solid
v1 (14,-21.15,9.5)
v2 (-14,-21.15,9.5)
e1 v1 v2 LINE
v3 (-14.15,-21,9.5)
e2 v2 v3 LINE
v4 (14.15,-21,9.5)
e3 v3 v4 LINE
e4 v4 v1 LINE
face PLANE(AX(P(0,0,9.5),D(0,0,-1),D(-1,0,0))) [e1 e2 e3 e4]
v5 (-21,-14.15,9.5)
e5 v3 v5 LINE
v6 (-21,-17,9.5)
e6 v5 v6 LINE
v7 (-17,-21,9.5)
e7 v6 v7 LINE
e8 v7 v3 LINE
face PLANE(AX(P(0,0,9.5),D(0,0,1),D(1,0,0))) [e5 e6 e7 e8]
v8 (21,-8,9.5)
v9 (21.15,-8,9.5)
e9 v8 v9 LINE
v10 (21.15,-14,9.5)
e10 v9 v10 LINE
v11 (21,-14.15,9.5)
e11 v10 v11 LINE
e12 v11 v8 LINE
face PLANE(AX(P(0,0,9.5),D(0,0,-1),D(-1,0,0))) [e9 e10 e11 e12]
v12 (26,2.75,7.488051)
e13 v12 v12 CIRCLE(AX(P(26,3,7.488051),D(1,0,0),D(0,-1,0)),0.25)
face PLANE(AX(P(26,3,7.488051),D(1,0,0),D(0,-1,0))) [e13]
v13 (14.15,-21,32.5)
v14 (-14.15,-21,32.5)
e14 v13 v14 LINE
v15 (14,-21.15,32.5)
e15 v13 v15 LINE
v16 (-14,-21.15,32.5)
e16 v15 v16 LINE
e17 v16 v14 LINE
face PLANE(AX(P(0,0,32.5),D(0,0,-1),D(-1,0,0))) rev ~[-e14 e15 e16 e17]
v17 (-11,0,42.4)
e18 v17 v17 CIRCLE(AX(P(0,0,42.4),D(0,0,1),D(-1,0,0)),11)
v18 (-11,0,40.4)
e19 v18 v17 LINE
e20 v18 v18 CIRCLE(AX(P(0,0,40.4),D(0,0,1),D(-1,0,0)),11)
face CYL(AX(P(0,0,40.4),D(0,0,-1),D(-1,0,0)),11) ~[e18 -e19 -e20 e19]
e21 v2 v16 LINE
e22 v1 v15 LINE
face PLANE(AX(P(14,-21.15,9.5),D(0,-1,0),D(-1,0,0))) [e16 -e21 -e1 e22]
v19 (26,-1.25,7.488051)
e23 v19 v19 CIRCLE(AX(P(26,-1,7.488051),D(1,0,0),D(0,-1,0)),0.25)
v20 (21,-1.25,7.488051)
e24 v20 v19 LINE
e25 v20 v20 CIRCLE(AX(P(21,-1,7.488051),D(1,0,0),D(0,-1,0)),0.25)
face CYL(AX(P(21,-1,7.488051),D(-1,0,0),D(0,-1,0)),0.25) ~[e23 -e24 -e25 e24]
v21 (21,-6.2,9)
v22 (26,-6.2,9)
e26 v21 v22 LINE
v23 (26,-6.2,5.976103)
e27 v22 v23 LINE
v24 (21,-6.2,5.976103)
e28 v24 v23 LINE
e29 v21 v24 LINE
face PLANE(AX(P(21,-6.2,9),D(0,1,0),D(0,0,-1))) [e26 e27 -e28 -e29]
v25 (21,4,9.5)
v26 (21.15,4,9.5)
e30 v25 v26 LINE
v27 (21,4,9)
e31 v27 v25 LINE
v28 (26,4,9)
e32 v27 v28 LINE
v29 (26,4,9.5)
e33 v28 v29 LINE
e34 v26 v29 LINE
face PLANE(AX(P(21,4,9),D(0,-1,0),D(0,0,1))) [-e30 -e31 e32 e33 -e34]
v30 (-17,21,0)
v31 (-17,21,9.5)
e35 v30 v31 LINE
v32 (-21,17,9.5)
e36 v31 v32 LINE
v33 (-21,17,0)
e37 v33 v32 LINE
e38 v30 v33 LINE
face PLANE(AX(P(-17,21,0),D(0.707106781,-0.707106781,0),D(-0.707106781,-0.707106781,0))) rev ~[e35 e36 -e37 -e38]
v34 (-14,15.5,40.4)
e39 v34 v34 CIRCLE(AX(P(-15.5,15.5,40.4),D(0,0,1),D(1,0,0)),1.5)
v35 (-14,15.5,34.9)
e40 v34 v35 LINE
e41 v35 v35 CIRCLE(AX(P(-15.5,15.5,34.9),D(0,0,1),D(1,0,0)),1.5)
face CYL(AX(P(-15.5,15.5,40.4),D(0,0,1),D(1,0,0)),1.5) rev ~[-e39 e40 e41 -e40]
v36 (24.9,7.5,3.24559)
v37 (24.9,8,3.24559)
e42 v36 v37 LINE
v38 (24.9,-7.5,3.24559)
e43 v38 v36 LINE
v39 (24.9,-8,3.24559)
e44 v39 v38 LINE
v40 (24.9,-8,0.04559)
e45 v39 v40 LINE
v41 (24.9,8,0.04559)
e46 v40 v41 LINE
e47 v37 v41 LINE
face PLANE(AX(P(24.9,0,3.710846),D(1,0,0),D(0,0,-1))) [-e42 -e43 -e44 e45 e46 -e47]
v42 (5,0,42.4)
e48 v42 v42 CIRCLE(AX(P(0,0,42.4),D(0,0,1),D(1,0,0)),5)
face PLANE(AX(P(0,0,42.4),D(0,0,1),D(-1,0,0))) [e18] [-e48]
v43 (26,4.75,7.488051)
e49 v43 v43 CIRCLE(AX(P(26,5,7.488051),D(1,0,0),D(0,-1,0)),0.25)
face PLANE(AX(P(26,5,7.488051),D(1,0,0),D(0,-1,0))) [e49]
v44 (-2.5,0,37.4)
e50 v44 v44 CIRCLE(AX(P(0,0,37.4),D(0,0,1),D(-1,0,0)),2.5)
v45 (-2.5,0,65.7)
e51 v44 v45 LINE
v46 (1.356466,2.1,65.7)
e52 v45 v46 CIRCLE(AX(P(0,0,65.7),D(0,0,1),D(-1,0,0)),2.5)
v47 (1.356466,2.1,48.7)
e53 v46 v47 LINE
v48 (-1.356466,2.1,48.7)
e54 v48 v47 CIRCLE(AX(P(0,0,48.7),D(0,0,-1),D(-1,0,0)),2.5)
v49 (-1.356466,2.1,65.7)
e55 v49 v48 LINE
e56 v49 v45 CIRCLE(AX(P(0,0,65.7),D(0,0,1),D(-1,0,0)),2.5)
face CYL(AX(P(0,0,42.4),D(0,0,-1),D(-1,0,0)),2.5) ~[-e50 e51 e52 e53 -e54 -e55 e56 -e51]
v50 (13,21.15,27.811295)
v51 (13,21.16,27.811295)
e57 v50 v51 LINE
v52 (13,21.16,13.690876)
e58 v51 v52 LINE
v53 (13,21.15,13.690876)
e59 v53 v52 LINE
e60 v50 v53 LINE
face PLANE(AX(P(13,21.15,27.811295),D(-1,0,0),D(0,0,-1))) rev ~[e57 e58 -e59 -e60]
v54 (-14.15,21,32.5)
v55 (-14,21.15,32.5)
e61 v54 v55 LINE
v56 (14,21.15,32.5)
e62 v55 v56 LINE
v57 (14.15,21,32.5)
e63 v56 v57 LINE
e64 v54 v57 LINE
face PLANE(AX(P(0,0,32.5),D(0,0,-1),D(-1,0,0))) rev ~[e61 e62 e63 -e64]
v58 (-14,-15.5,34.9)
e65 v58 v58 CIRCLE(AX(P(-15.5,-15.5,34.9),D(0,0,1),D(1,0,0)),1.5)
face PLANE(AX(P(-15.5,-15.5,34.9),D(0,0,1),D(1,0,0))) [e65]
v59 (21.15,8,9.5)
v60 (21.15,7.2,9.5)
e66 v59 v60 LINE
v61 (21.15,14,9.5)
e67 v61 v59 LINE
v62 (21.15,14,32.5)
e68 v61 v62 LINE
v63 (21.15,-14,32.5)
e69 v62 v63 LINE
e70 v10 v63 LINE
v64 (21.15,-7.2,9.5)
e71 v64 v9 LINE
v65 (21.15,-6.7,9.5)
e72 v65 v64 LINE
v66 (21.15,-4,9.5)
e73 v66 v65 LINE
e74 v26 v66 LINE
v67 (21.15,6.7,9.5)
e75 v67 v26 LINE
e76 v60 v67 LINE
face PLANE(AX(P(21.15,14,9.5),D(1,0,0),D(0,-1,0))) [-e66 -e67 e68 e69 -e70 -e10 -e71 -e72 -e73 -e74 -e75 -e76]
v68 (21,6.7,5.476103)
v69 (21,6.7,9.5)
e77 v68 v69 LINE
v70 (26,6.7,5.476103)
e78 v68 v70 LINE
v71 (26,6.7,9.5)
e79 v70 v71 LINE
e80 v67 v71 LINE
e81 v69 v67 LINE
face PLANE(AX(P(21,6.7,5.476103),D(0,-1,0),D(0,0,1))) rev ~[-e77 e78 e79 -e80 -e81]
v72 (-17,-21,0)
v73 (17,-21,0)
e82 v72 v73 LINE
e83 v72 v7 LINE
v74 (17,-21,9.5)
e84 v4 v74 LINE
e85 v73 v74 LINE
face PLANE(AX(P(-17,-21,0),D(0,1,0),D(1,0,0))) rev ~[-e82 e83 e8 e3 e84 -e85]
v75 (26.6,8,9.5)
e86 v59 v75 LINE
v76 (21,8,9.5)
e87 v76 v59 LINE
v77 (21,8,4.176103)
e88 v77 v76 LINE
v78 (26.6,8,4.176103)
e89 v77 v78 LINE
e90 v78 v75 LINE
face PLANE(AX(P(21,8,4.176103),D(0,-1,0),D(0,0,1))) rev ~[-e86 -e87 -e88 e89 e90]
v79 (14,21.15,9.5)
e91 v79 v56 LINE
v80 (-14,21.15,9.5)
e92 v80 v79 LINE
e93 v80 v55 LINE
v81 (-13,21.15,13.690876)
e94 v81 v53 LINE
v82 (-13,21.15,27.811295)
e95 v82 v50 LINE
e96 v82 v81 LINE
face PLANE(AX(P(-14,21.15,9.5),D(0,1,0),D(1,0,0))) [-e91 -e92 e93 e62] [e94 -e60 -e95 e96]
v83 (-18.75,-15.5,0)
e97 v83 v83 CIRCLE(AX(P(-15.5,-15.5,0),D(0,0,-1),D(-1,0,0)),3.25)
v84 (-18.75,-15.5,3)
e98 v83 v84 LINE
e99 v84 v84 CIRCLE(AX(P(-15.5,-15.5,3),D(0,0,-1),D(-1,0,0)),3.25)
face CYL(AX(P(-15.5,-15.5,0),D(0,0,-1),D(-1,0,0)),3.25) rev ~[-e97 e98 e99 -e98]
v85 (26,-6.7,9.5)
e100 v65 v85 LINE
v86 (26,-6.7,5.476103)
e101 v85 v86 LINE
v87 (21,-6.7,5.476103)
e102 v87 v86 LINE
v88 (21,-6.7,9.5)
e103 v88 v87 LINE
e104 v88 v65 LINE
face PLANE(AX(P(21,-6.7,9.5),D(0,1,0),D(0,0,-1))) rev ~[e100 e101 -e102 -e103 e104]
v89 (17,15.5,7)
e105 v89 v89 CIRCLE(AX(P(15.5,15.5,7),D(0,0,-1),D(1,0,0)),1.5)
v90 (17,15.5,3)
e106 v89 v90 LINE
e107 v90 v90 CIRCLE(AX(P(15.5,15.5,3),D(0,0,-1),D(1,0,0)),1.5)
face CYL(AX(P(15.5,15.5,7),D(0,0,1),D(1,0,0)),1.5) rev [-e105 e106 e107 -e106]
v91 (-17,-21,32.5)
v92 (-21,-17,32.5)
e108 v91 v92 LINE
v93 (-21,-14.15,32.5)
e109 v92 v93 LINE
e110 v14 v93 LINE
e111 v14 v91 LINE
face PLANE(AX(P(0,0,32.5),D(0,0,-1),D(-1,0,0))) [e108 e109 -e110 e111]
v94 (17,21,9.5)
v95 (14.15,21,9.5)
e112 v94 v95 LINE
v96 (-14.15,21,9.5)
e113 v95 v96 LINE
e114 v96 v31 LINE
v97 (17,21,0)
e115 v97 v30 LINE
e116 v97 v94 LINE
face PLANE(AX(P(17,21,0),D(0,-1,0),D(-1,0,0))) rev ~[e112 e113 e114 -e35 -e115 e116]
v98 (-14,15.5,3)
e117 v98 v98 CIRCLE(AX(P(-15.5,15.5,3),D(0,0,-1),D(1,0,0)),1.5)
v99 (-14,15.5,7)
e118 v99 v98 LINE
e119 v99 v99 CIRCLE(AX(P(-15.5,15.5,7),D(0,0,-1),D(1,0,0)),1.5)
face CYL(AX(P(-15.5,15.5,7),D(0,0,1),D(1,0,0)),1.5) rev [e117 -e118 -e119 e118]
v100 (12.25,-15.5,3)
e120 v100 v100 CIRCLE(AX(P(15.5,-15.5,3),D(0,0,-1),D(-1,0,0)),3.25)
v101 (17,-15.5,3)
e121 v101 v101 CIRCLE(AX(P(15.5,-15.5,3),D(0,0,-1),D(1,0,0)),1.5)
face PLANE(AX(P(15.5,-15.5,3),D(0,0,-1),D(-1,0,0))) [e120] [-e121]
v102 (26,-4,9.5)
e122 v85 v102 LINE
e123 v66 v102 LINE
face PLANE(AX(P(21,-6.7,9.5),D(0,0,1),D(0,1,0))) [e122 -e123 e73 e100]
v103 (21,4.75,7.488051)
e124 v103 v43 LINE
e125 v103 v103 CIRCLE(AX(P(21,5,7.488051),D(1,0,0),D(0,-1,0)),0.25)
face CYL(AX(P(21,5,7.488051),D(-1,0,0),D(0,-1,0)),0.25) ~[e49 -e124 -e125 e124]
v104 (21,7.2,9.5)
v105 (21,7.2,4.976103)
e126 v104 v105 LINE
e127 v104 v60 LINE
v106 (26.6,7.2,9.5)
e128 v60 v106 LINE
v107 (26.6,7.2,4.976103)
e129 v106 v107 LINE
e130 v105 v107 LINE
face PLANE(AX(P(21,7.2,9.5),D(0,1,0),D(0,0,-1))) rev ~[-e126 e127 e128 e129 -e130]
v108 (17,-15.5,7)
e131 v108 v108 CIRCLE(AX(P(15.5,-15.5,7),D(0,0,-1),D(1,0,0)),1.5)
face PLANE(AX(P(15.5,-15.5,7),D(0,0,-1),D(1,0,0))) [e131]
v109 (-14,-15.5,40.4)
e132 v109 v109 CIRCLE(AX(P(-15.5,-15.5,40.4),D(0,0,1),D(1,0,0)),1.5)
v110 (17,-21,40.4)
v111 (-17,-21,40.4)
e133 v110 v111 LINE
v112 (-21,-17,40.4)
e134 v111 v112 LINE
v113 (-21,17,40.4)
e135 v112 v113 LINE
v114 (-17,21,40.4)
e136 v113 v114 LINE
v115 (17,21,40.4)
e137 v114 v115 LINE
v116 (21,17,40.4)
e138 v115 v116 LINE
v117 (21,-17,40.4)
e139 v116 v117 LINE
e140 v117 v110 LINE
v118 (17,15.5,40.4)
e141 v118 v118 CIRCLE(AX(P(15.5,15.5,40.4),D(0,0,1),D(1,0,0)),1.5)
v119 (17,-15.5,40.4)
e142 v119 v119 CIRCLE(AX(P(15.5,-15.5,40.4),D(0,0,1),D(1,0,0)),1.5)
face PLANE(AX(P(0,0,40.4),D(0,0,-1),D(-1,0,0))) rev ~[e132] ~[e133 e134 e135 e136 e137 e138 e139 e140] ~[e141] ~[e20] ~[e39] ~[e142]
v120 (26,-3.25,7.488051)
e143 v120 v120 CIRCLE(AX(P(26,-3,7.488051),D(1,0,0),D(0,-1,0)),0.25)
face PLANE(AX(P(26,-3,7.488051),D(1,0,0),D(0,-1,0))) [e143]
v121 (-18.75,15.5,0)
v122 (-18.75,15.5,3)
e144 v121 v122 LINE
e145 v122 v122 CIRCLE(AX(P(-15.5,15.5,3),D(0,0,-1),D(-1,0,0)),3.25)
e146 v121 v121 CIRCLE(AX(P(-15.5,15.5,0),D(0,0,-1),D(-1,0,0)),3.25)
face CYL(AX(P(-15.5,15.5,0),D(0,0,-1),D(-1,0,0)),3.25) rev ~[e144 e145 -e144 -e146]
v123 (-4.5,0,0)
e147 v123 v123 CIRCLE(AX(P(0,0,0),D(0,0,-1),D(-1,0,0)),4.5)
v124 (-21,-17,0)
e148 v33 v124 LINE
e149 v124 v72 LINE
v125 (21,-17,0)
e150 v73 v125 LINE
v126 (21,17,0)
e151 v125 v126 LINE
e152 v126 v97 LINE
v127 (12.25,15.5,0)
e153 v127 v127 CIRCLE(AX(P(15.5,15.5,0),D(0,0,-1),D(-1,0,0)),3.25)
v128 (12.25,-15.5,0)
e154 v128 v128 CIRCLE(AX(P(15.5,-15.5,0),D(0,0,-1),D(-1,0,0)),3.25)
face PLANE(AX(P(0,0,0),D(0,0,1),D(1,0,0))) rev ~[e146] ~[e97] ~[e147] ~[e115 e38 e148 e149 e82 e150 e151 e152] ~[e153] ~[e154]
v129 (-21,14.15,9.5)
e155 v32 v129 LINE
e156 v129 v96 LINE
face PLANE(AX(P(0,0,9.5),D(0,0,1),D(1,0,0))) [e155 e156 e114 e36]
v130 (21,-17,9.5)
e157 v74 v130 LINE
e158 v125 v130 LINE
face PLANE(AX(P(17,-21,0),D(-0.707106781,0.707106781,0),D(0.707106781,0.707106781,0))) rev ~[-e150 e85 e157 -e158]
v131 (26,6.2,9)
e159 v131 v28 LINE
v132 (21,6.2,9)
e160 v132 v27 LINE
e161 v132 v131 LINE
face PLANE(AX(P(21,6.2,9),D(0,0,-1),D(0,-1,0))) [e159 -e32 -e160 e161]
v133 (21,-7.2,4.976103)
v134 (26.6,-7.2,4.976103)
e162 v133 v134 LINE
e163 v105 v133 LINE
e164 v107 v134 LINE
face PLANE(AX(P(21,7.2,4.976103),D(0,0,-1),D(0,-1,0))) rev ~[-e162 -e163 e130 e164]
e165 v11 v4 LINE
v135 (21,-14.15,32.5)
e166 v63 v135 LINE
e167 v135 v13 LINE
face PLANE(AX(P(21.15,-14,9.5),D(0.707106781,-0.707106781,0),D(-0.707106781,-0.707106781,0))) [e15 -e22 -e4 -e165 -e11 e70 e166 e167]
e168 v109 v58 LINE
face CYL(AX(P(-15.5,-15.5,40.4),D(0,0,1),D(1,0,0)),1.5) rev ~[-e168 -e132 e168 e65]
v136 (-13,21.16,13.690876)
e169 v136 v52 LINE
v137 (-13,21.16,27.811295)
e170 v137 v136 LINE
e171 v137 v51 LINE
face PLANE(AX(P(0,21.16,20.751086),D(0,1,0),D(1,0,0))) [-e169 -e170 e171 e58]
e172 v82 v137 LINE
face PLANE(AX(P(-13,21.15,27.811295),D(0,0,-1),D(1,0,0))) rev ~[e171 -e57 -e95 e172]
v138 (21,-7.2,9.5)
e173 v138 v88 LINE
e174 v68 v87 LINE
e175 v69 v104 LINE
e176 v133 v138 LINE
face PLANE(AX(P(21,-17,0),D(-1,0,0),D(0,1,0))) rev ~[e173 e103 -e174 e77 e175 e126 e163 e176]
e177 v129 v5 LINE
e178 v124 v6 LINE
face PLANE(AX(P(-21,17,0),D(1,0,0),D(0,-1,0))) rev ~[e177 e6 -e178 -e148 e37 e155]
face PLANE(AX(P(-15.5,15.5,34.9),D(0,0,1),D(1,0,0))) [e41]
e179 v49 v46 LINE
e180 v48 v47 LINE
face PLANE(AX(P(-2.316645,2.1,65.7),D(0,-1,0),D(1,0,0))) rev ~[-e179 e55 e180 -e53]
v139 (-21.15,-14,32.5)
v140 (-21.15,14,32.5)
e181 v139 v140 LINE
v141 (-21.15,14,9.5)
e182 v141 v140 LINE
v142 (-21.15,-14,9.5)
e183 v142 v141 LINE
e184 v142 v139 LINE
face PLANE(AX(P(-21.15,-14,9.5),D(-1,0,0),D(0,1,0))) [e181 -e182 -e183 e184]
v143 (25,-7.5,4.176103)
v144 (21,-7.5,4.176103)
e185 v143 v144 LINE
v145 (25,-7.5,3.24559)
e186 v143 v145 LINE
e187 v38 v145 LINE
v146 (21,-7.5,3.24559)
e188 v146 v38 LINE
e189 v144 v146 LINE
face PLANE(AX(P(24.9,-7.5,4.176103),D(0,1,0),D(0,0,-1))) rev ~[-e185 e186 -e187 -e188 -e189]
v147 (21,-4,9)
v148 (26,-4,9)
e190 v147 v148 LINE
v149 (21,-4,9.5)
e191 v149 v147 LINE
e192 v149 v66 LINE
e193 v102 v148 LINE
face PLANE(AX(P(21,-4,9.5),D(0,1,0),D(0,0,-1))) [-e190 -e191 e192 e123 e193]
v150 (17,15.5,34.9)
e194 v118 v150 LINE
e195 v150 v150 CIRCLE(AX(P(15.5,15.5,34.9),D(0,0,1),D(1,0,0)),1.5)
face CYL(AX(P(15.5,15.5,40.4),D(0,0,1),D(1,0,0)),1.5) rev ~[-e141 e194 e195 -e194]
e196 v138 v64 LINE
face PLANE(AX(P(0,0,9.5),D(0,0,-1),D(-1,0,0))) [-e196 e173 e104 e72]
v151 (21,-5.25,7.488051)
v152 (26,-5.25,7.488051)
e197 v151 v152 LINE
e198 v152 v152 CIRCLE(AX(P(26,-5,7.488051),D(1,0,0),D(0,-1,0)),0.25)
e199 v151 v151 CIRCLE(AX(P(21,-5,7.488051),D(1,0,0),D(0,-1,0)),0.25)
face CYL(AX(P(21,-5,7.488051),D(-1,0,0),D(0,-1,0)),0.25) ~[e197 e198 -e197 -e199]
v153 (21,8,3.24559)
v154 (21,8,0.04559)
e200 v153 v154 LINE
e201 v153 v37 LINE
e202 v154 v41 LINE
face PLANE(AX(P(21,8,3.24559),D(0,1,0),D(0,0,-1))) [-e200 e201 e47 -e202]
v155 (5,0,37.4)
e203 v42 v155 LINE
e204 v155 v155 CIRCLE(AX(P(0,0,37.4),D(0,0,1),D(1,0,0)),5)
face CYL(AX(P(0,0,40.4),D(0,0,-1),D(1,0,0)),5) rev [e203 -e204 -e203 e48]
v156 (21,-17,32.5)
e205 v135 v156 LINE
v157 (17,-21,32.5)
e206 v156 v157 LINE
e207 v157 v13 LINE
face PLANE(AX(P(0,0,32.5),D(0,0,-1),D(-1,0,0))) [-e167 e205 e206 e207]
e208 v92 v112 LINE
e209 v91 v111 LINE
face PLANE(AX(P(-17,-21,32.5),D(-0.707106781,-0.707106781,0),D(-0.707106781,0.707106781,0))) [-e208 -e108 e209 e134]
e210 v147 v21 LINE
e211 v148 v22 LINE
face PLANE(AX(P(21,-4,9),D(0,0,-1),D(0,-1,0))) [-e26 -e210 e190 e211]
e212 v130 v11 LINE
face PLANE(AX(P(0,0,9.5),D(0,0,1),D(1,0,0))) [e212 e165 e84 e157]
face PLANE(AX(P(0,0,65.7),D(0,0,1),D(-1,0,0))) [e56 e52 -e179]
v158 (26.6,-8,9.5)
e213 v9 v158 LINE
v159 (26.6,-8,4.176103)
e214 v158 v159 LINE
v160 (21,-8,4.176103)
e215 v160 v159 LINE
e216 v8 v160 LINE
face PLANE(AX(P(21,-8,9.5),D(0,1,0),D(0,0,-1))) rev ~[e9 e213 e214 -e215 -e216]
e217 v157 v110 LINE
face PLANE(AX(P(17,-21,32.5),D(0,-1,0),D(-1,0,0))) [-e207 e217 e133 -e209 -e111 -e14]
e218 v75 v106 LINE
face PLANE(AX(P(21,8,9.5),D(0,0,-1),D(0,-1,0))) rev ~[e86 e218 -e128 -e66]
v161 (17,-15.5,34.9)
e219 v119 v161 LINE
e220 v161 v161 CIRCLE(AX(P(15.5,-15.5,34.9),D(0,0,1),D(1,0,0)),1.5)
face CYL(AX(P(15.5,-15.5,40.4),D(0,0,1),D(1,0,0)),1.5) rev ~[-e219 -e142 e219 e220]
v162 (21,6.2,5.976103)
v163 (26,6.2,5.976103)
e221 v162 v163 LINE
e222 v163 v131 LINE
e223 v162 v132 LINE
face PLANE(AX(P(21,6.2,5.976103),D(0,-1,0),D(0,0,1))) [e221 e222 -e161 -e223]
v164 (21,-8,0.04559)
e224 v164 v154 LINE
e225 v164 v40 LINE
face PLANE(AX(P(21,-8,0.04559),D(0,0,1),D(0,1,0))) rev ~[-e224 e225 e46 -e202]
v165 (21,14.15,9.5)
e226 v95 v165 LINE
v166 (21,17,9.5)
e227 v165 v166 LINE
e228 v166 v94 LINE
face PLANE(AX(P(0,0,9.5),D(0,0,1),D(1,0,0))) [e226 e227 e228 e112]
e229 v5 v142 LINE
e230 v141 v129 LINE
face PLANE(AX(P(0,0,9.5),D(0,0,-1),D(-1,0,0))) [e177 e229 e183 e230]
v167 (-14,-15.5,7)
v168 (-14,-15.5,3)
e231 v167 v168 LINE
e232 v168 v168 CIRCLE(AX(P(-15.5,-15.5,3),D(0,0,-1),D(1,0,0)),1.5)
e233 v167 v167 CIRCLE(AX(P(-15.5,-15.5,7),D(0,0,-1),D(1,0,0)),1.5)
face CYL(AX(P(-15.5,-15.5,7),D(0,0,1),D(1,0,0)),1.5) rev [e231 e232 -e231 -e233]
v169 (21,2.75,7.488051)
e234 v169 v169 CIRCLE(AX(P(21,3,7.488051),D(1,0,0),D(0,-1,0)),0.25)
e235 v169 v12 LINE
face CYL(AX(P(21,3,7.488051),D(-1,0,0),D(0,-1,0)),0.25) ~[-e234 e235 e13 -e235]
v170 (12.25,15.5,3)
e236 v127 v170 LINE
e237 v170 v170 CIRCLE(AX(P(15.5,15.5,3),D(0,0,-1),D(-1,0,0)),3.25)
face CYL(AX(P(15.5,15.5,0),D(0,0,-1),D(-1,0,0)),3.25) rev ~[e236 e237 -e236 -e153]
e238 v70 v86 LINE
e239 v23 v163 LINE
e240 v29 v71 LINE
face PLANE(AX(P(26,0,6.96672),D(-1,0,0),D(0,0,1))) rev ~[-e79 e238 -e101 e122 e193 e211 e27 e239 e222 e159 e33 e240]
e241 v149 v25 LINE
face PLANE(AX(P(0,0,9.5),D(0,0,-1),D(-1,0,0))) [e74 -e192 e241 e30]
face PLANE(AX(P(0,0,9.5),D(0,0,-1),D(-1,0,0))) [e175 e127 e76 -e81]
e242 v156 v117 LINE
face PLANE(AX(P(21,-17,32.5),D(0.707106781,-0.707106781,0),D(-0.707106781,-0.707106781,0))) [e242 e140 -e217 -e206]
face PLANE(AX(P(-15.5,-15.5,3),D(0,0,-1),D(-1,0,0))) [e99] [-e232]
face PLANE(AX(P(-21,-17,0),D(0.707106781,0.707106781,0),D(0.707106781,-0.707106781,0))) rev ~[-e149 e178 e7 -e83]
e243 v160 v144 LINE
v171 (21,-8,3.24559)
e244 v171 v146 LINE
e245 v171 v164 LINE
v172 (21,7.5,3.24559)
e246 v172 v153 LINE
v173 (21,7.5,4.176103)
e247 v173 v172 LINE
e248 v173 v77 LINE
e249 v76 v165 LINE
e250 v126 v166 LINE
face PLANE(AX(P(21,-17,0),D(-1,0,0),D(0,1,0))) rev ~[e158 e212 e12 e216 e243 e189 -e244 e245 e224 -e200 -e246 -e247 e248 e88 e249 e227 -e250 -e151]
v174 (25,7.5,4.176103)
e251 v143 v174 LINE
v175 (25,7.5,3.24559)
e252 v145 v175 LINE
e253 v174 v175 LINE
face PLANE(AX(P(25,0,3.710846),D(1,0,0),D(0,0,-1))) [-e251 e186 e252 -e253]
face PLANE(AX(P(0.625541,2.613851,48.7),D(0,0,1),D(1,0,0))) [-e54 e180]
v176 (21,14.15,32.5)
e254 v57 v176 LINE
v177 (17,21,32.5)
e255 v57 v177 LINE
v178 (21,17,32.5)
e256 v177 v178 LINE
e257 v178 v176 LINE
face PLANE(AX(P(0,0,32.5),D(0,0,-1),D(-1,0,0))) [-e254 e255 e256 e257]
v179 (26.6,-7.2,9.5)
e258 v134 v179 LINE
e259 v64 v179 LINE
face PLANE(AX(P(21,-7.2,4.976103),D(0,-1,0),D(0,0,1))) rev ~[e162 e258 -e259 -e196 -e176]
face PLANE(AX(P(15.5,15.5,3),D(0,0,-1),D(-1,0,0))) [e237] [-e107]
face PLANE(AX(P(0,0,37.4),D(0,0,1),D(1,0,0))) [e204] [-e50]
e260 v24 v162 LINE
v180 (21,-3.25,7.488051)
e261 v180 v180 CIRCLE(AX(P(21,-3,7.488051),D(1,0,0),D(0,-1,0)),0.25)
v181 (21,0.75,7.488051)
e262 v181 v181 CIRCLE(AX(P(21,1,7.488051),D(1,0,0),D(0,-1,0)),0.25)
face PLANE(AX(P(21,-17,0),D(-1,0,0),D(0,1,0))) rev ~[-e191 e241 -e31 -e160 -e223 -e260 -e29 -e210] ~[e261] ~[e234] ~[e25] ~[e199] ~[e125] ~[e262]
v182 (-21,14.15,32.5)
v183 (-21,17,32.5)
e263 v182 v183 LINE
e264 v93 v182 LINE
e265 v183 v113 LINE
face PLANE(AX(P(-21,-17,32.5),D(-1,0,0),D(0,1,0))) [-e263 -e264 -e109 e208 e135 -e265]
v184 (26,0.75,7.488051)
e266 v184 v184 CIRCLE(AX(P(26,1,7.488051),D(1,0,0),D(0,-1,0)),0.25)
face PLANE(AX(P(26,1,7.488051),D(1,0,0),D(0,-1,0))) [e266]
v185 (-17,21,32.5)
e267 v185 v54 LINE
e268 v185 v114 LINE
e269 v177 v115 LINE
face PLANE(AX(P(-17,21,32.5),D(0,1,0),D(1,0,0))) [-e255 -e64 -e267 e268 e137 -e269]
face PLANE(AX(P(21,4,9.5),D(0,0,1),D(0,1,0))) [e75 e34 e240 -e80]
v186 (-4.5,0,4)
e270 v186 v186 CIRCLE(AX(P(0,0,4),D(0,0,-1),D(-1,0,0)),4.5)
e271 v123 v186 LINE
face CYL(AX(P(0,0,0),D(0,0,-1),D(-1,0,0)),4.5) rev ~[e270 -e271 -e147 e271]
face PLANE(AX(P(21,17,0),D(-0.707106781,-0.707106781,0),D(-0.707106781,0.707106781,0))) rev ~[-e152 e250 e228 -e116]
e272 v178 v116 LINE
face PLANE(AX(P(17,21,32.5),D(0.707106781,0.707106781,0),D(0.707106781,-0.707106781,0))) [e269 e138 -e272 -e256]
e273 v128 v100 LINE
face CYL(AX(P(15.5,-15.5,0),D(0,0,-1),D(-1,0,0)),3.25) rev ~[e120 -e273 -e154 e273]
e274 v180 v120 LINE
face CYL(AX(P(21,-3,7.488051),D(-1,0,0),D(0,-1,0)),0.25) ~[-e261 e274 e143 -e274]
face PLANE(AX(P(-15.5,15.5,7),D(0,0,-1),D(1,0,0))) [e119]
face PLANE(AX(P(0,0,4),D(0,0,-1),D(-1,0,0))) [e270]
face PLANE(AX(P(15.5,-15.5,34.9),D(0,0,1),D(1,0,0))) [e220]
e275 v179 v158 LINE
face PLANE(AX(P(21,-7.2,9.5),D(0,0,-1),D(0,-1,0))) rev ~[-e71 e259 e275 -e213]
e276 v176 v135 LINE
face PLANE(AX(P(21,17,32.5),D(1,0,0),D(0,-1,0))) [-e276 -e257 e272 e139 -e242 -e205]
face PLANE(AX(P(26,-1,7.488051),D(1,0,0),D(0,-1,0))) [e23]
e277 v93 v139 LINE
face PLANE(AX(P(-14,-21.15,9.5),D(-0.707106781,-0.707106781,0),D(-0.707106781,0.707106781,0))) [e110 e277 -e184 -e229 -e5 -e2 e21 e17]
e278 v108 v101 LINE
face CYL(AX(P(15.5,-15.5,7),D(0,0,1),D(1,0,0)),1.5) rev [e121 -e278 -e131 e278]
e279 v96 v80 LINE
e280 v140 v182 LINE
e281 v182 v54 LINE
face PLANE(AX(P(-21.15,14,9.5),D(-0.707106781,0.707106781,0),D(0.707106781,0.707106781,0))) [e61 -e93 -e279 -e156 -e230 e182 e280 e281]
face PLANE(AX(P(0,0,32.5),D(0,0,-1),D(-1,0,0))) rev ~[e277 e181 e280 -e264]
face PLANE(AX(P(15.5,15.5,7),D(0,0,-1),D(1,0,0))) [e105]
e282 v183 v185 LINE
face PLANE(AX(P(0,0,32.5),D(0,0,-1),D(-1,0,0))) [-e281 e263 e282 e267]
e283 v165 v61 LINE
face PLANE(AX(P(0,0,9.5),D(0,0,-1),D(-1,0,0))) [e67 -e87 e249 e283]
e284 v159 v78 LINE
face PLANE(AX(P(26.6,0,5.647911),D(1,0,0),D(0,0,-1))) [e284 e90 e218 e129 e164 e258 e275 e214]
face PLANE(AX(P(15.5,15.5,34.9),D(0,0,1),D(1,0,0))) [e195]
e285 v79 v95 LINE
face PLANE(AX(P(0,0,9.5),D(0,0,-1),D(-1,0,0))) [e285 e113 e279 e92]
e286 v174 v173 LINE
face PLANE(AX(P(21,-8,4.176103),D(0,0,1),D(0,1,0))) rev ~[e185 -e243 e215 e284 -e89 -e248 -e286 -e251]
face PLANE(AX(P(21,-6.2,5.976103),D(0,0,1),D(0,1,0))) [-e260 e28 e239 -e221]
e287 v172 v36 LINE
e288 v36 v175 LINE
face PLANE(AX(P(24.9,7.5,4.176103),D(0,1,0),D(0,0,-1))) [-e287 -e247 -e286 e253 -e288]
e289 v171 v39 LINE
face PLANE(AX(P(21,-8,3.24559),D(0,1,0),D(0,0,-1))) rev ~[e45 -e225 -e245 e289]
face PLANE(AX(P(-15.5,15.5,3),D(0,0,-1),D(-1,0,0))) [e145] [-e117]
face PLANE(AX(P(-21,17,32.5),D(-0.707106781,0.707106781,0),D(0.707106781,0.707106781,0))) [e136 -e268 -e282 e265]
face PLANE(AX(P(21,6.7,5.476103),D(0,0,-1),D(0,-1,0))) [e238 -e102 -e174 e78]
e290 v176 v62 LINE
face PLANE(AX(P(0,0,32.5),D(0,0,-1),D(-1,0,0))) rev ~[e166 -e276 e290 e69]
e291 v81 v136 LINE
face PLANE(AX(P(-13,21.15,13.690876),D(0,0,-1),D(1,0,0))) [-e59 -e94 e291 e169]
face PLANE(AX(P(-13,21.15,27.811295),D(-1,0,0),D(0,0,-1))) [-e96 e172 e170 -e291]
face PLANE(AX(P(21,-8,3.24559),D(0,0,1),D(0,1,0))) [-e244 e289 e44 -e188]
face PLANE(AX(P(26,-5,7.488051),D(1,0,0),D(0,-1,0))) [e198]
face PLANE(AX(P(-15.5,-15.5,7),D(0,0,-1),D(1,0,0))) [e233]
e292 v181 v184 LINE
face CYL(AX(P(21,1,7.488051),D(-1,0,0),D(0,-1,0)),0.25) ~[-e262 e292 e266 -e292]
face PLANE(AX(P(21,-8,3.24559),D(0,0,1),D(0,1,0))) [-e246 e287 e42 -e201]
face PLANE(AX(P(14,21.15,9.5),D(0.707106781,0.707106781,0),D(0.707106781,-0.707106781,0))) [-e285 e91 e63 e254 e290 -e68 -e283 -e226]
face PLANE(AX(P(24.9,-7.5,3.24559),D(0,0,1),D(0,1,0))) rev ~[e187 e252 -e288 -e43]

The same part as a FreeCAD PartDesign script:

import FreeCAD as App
import Part
import Sketcher

doc = App.newDocument("Part")
body = doc.addObject("PartDesign::Body", "Body")

# Sketch on XY plane
sketch1 = body.newObject("Sketcher::SketchObject", "Sketch")
sketch1.AttachmentSupport = (doc.getObject("XY_Plane"), [""])
sketch1.MapMode = "FlatFace"
sketch1.addGeometry([
    Part.LineSegment(App.Vector(-17, 21, 0), App.Vector(-21, 17, 0)),  # 0
    Part.LineSegment(App.Vector(-21, 17, 0), App.Vector(-21, -17, 0)),  # 1
    Part.LineSegment(App.Vector(-21, -17, 0), App.Vector(-17, -21, 0)),  # 2
    Part.LineSegment(App.Vector(-17, -21, 0), App.Vector(17, -21, 0)),  # 3
    Part.LineSegment(App.Vector(17, -21, 0), App.Vector(21, -17, 0)),  # 4
    Part.LineSegment(App.Vector(21, -17, 0), App.Vector(21, 17, 0)),  # 5
    Part.LineSegment(App.Vector(21, 17, 0), App.Vector(17, 21, 0)),  # 6
    Part.LineSegment(App.Vector(17, 21, 0), App.Vector(-17, 21, 0)),  # 7
], False)
sketch1.addConstraint([
    Sketcher.Constraint("Coincident", 0, 2, 1, 1),
    Sketcher.Constraint("Coincident", 1, 2, 2, 1),
    Sketcher.Constraint("Coincident", 2, 2, 3, 1),
    Sketcher.Constraint("Coincident", 3, 2, 4, 1),
    Sketcher.Constraint("Coincident", 4, 2, 5, 1),
    Sketcher.Constraint("Coincident", 5, 2, 6, 1),
    Sketcher.Constraint("Coincident", 6, 2, 7, 1),
    Sketcher.Constraint("Coincident", 7, 2, 0, 1),
    Sketcher.Constraint("Vertical", 1),
    Sketcher.Constraint("Horizontal", 3),
    Sketcher.Constraint("Vertical", 5),
    Sketcher.Constraint("Horizontal", 7),
    Sketcher.Constraint("Symmetric", 0, 2, 4, 2, -1, 1),
    Sketcher.Constraint("Symmetric", 2, 2, 6, 2, -1, 1),
    Sketcher.Constraint("Perpendicular", 0, 2),
    Sketcher.Constraint("Perpendicular", 2, 4),
    Sketcher.Constraint("Perpendicular", 4, 6),
    Sketcher.Constraint("Horizontal", 1, 2, 4, 2),
    Sketcher.Constraint("Vertical", 3, 2, 6, 2),
    Sketcher.Constraint("Equal", 7, 1),
    Sketcher.Constraint("DistanceX", 3, 1, 3, 2, 34.0),
    Sketcher.Constraint("DistanceX", 0, 2, -1, 1, 21.0),
])
pad1 = body.newObject("PartDesign::Pad", "Pad")
pad1.Profile = sketch1
pad1.Length = 9.5

# Sketch on XY plane
sketch2 = body.newObject("Sketcher::SketchObject", "Sketch001")
sketch2.AttachmentSupport = (doc.getObject("XY_Plane"), [""])
sketch2.MapMode = "FlatFace"
sketch2.AttachmentOffset = App.Placement(App.Vector(0, 0, 9.5), App.Rotation())
sketch2.addGeometry([
    Part.LineSegment(App.Vector(21, 14, 0), App.Vector(14, 21, 0)),  # 0
    Part.LineSegment(App.Vector(14, 21, 0), App.Vector(-14, 21, 0)),  # 1
    Part.LineSegment(App.Vector(-14, 21, 0), App.Vector(-21, 14, 0)),  # 2
    Part.LineSegment(App.Vector(-21, 14, 0), App.Vector(-21, -14, 0)),  # 3
    Part.LineSegment(App.Vector(-21, -14, 0), App.Vector(-14, -21, 0)),  # 4
    Part.LineSegment(App.Vector(-14, -21, 0), App.Vector(14, -21, 0)),  # 5
    Part.LineSegment(App.Vector(14, -21, 0), App.Vector(21, -14, 0)),  # 6
    Part.LineSegment(App.Vector(21, -14, 0), App.Vector(21, 14, 0)),  # 7
], False)
sketch2.addConstraint([
    Sketcher.Constraint("Coincident", 0, 2, 1, 1),
    Sketcher.Constraint("Coincident", 1, 2, 2, 1),
    Sketcher.Constraint("Coincident", 2, 2, 3, 1),
    Sketcher.Constraint("Coincident", 3, 2, 4, 1),
    Sketcher.Constraint("Coincident", 4, 2, 5, 1),
    Sketcher.Constraint("Coincident", 5, 2, 6, 1),
    Sketcher.Constraint("Coincident", 6, 2, 7, 1),
    Sketcher.Constraint("Coincident", 7, 2, 0, 1),
    Sketcher.Constraint("Horizontal", 1),
    Sketcher.Constraint("Vertical", 3),
    Sketcher.Constraint("Horizontal", 5),
    Sketcher.Constraint("Vertical", 7),
    Sketcher.Constraint("Symmetric", 0, 2, 4, 2, -1, 1),
    Sketcher.Constraint("Symmetric", 2, 2, 6, 2, -1, 1),
    Sketcher.Constraint("Perpendicular", 0, 2),
    Sketcher.Constraint("Perpendicular", 2, 4),
    Sketcher.Constraint("Perpendicular", 4, 6),
    Sketcher.Constraint("Horizontal", 3, 2, 6, 2),
    Sketcher.Constraint("Vertical", 1, 2, 4, 2),
    Sketcher.Constraint("Equal", 5, 3),
    Sketcher.Constraint("DistanceX", 1, 2, 1, 1, 28.0),
    Sketcher.Constraint("DistanceY", 4, 2, 1, 2, 42.3),
])
pad2 = body.newObject("PartDesign::Pad", "Pad001")
pad2.Profile = sketch2
pad2.Length = 23

# Sketch on XY plane
sketch3 = body.newObject("Sketcher::SketchObject", "Sketch002")
sketch3.AttachmentSupport = (doc.getObject("XY_Plane"), [""])
sketch3.MapMode = "FlatFace"
sketch3.AttachmentOffset = App.Placement(App.Vector(0, 0, 32.5), App.Rotation())
sketch3.addGeometry([
    Part.LineSegment(App.Vector(17, 21, 0), App.Vector(-17, 21, 0)),  # 0
    Part.LineSegment(App.Vector(-17, 21, 0), App.Vector(-21, 17, 0)),  # 1
    Part.LineSegment(App.Vector(-21, 17, 0), App.Vector(-21, -17, 0)),  # 2
    Part.LineSegment(App.Vector(-21, -17, 0), App.Vector(-17, -21, 0)),  # 3
    Part.LineSegment(App.Vector(-17, -21, 0), App.Vector(17, -21, 0)),  # 4
    Part.LineSegment(App.Vector(17, -21, 0), App.Vector(21, -17, 0)),  # 5
    Part.LineSegment(App.Vector(21, -17, 0), App.Vector(21, 17, 0)),  # 6
    Part.LineSegment(App.Vector(21, 17, 0), App.Vector(17, 21, 0)),  # 7
], False)
sketch3.addConstraint([
    Sketcher.Constraint("Coincident", 0, 2, 1, 1),
    Sketcher.Constraint("Coincident", 1, 2, 2, 1),
    Sketcher.Constraint("Coincident", 2, 2, 3, 1),
    Sketcher.Constraint("Coincident", 3, 2, 4, 1),
    Sketcher.Constraint("Coincident", 4, 2, 5, 1),
    Sketcher.Constraint("Coincident", 5, 2, 6, 1),
    Sketcher.Constraint("Coincident", 6, 2, 7, 1),
    Sketcher.Constraint("Coincident", 7, 2, 0, 1),
    Sketcher.Constraint("Horizontal", 0),
    Sketcher.Constraint("Vertical", 2),
    Sketcher.Constraint("Horizontal", 4),
    Sketcher.Constraint("Vertical", 6),
    Sketcher.Constraint("Symmetric", 0, 2, 4, 2, -1, 1),
    Sketcher.Constraint("Symmetric", 1, 2, 5, 2, -1, 1),
    Sketcher.Constraint("Perpendicular", 1, 3),
    Sketcher.Constraint("Perpendicular", 5, 7),
    Sketcher.Constraint("Horizontal", 2, 2, 5, 2),
    Sketcher.Constraint("Horizontal", 1, 2, 6, 2),
    Sketcher.Constraint("Vertical", 0, 2, 3, 2),
    Sketcher.Constraint("Equal", 4, 2),
    Sketcher.Constraint("DistanceX", 0, 2, 0, 1, 34.0),
    Sketcher.Constraint("DistanceY", -1, 1, 0, 2, 21.0),
])
pad3 = body.newObject("PartDesign::Pad", "Pad002")
pad3.Profile = sketch3
pad3.Length = 7.9

# Sketch on XY plane
sketch4 = body.newObject("Sketcher::SketchObject", "Sketch003")
sketch4.AttachmentSupport = (doc.getObject("XY_Plane"), [""])
sketch4.MapMode = "FlatFace"
sketch4.AttachmentOffset = App.Placement(App.Vector(0, 0, 40.4), App.Rotation())
sketch4.addGeometry([
    Part.Circle(App.Vector(0, 0, 0), App.Vector(0, 0, 1), 11),
    Part.Circle(App.Vector(0, 0, 0), App.Vector(0, 0, 1), 5),
], False)
sketch4.addConstraint([
    Sketcher.Constraint("Coincident", 0, 3, -1, 1),
    Sketcher.Constraint("Coincident", 1, 3, -1, 1),
    Sketcher.Constraint("Diameter", 0, 22.0),
    Sketcher.Constraint("Diameter", 1, 10.0),
])
pad4 = body.newObject("PartDesign::Pad", "Pad003")
pad4.Profile = sketch4
pad4.Length = 2

# Sketch on XY plane
sketch5 = body.newObject("Sketcher::SketchObject", "Sketch004")
sketch5.AttachmentSupport = (doc.getObject("XY_Plane"), [""])
sketch5.MapMode = "FlatFace"
sketch5.AttachmentOffset = App.Placement(App.Vector(0, 0, 37.4), App.Rotation())
sketch5.addGeometry(Part.Circle(App.Vector(0, 0, 0), App.Vector(0, 0, 1), 5), False)
sketch5.addConstraint([
    Sketcher.Constraint("Coincident", 0, 3, -1, 1),
    Sketcher.Constraint("Diameter", 0, 10.0),
])
pocket1 = body.newObject("PartDesign::Pocket", "Pocket")
pocket1.Profile = sketch5
pocket1.Length = 3
pocket1.Reversed = True

# Sketch on XY plane
sketch6 = body.newObject("Sketcher::SketchObject", "Sketch005")
sketch6.AttachmentSupport = (doc.getObject("XY_Plane"), [""])
sketch6.MapMode = "FlatFace"
sketch6.AttachmentOffset = App.Placement(App.Vector(0, 0, 37.4), App.Rotation())
sketch6.addGeometry(Part.Circle(App.Vector(0, 0, 0), App.Vector(0, 0, 1), 2.5), False)
sketch6.addConstraint([
    Sketcher.Constraint("Coincident", 0, 3, -1, 1),
    Sketcher.Constraint("Diameter", 0, 5.0),
])
pad5 = body.newObject("PartDesign::Pad", "Pad004")
pad5.Profile = sketch6
pad5.Length = 5

# Sketch on XY plane
sketch7 = body.newObject("Sketcher::SketchObject", "Sketch006")
sketch7.AttachmentSupport = (doc.getObject("XY_Plane"), [""])
sketch7.MapMode = "FlatFace"
sketch7.AttachmentOffset = App.Placement(App.Vector(0, 0, 42.4), App.Rotation())
sketch7.addGeometry(Part.Circle(App.Vector(0, 0, 0), App.Vector(0, 0, 1), 2.5), False)
sketch7.addConstraint([
    Sketcher.Constraint("Coincident", 0, 3, -1, 1),
    Sketcher.Constraint("Diameter", 0, 5.0),
])
pad6 = body.newObject("PartDesign::Pad", "Pad005")
pad6.Profile = sketch7
pad6.Length = 23.3

# Sketch on XY plane
sketch8 = body.newObject("Sketcher::SketchObject", "Sketch007")
sketch8.AttachmentSupport = (doc.getObject("XY_Plane"), [""])
sketch8.MapMode = "FlatFace"
sketch8.AttachmentOffset = App.Placement(App.Vector(0, 0, 65.7), App.Rotation())
sketch8.addGeometry([
    Part.LineSegment(App.Vector(-2.3, 2.1, 0), App.Vector(3.7, 2.1, 0)),
    Part.LineSegment(App.Vector(3.7, 2.1, 0), App.Vector(-0.1, 4, 0)),
    Part.LineSegment(App.Vector(-0.1, 4, 0), App.Vector(-2.3, 2.1, 0)),
], False)
sketch8.addConstraint([
    Sketcher.Constraint("Coincident", 0, 2, 1, 1),
    Sketcher.Constraint("Coincident", 1, 2, 2, 1),
    Sketcher.Constraint("Coincident", 2, 2, 0, 1),
    Sketcher.Constraint("Horizontal", 0),
    Sketcher.Constraint("DistanceY", -1, 1, 0, 2, 2.1),
    Sketcher.Constraint("Distance", 2, 2.895809),
    Sketcher.Constraint("DistanceX", 0, 1, 0, 2, 6.014584),
    Sketcher.Constraint("DistanceX", -1, 1, 0, 2, 3.697939),
    Sketcher.Constraint("DistanceY", -1, 1, 1, 2, 3.991048),
])
pocket2 = body.newObject("PartDesign::Pocket", "Pocket001")
pocket2.Profile = sketch8
pocket2.Length = 17

# Sketch on XZ plane
sketch9 = body.newObject("Sketcher::SketchObject", "Sketch008")
sketch9.AttachmentSupport = (doc.getObject("XZ_Plane"), [""])
sketch9.MapMode = "FlatFace"
sketch9.AttachmentOffset = App.Placement(App.Vector(0, 0, -21.15), App.Rotation())
sketch9.addGeometry([
    Part.LineSegment(App.Vector(-13, 14, 0), App.Vector(-13, 28, 0)),
    Part.LineSegment(App.Vector(-13, 28, 0), App.Vector(13, 28, 0)),
    Part.LineSegment(App.Vector(13, 28, 0), App.Vector(13, 14, 0)),
    Part.LineSegment(App.Vector(13, 14, 0), App.Vector(-13, 14, 0)),
], False)
sketch9.addConstraint([
    Sketcher.Constraint("Coincident", 0, 2, 1, 1),
    Sketcher.Constraint("Coincident", 1, 2, 2, 1),
    Sketcher.Constraint("Coincident", 2, 2, 3, 1),
    Sketcher.Constraint("Coincident", 3, 2, 0, 1),
    Sketcher.Constraint("Vertical", 0),
    Sketcher.Constraint("Horizontal", 1),
    Sketcher.Constraint("Vertical", 2),
    Sketcher.Constraint("Horizontal", 3),
    Sketcher.Constraint("DistanceX", 1, 1, 1, 2, 26.0),
    Sketcher.Constraint("DistanceX", 0, 2, -1, 1, 13.0),
    Sketcher.Constraint("DistanceY", 0, 1, 0, 2, 14.120419),
    Sketcher.Constraint("DistanceY", -1, 1, 0, 2, 27.811295),
])
pad7 = body.newObject("PartDesign::Pad", "Pad006")
pad7.Profile = sketch9
pad7.Length = 0.01
pad7.Reversed = True

# Sketch on YZ plane
sketch10 = body.newObject("Sketcher::SketchObject", "Sketch009")
sketch10.AttachmentSupport = (doc.getObject("YZ_Plane"), [""])
sketch10.MapMode = "FlatFace"
sketch10.AttachmentOffset = App.Placement(App.Vector(0, 0, 21), App.Rotation())
sketch10.addGeometry([
    Part.LineSegment(App.Vector(8, 3.2, 0), App.Vector(-8, 3.2, 0)),
    Part.LineSegment(App.Vector(-8, 3.2, 0), App.Vector(-8, 0, 0)),
    Part.LineSegment(App.Vector(-8, 0, 0), App.Vector(8, 0, 0)),
    Part.LineSegment(App.Vector(8, 0, 0), App.Vector(8, 3.2, 0)),
], False)
sketch10.addConstraint([
    Sketcher.Constraint("Coincident", 0, 2, 1, 1),
    Sketcher.Constraint("Coincident", 1, 2, 2, 1),
    Sketcher.Constraint("Coincident", 2, 2, 3, 1),
    Sketcher.Constraint("Coincident", 3, 2, 0, 1),
    Sketcher.Constraint("Horizontal", 0),
    Sketcher.Constraint("Vertical", 1),
    Sketcher.Constraint("Horizontal", 2),
    Sketcher.Constraint("Vertical", 3),
    Sketcher.Constraint("DistanceX", 0, 2, 0, 1, 16.0),
    Sketcher.Constraint("DistanceY", 1, 2, 1, 1, 3.2),
    Sketcher.Constraint("DistanceX", 0, 2, -1, 1, 8.0),
    Sketcher.Constraint("DistanceY", -1, 1, 0, 2, 3.24559),
])
pad8 = body.newObject("PartDesign::Pad", "Pad007")
pad8.Profile = sketch10
pad8.Length = 3.9

# Sketch on YZ plane
sketch11 = body.newObject("Sketcher::SketchObject", "Sketch010")
sketch11.AttachmentSupport = (doc.getObject("YZ_Plane"), [""])
sketch11.MapMode = "FlatFace"
sketch11.AttachmentOffset = App.Placement(App.Vector(0, 0, 21), App.Rotation())
sketch11.addGeometry([
    Part.LineSegment(App.Vector(7.2, 9.5, 0), App.Vector(7.2, 5, 0)),  # 0
    Part.LineSegment(App.Vector(7.2, 5, 0), App.Vector(-7.2, 5, 0)),  # 1
    Part.LineSegment(App.Vector(-7.2, 5, 0), App.Vector(-7.2, 9.5, 0)),  # 2
    Part.LineSegment(App.Vector(-7.2, 9.5, 0), App.Vector(-8, 9.5, 0)),  # 3
    Part.LineSegment(App.Vector(-8, 9.5, 0), App.Vector(-8, 4.2, 0)),  # 4
    Part.LineSegment(App.Vector(-8, 4.2, 0), App.Vector(8, 4.2, 0)),  # 5
    Part.LineSegment(App.Vector(8, 4.2, 0), App.Vector(8, 9.5, 0)),  # 6
    Part.LineSegment(App.Vector(8, 9.5, 0), App.Vector(7.2, 9.5, 0)),  # 7
], False)
sketch11.addConstraint([
    Sketcher.Constraint("Coincident", 0, 2, 1, 1),
    Sketcher.Constraint("Coincident", 1, 2, 2, 1),
    Sketcher.Constraint("Coincident", 2, 2, 3, 1),
    Sketcher.Constraint("Coincident", 3, 2, 4, 1),
    Sketcher.Constraint("Coincident", 4, 2, 5, 1),
    Sketcher.Constraint("Coincident", 5, 2, 6, 1),
    Sketcher.Constraint("Coincident", 6, 2, 7, 1),
    Sketcher.Constraint("Coincident", 7, 2, 0, 1),
    Sketcher.Constraint("Vertical", 0),
    Sketcher.Constraint("Horizontal", 1),
    Sketcher.Constraint("Vertical", 2),
    Sketcher.Constraint("Horizontal", 3),
    Sketcher.Constraint("Vertical", 4),
    Sketcher.Constraint("Horizontal", 5),
    Sketcher.Constraint("Vertical", 6),
    Sketcher.Constraint("Horizontal", 7),
    Sketcher.Constraint("Symmetric", 3, 2, 6, 2, -2),
    Sketcher.Constraint("Equal", 3, 7),
    Sketcher.Constraint("DistanceX", 5, 1, 5, 2, 16.0),
    Sketcher.Constraint("DistanceX", 1, 2, 1, 1, 14.4),
    Sketcher.Constraint("DistanceY", -1, 1, 2, 2, 9.5),
    Sketcher.Constraint("DistanceY", 4, 2, 1, 2, 0.8),
    Sketcher.Constraint("DistanceY", 0, 2, 0, 1, 4.523897),
])
pad9 = body.newObject("PartDesign::Pad", "Pad008")
pad9.Profile = sketch11
pad9.Length = 5.6

# Sketch on YZ plane
sketch12 = body.newObject("Sketcher::SketchObject", "Sketch011")
sketch12.AttachmentSupport = (doc.getObject("YZ_Plane"), [""])
sketch12.MapMode = "FlatFace"
sketch12.AttachmentOffset = App.Placement(App.Vector(0, 0, 21), App.Rotation())
sketch12.addGeometry([
    Part.LineSegment(App.Vector(7.5, 4.2, 0), App.Vector(-7.5, 4.2, 0)),
    Part.LineSegment(App.Vector(-7.5, 4.2, 0), App.Vector(-7.5, 3.2, 0)),
    Part.LineSegment(App.Vector(-7.5, 3.2, 0), App.Vector(7.5, 3.2, 0)),
    Part.LineSegment(App.Vector(7.5, 3.2, 0), App.Vector(7.5, 4.2, 0)),
], False)
sketch12.addConstraint([
    Sketcher.Constraint("Coincident", 0, 2, 1, 1),
    Sketcher.Constraint("Coincident", 1, 2, 2, 1),
    Sketcher.Constraint("Coincident", 2, 2, 3, 1),
    Sketcher.Constraint("Coincident", 3, 2, 0, 1),
    Sketcher.Constraint("Horizontal", 0),
    Sketcher.Constraint("Vertical", 1),
    Sketcher.Constraint("Horizontal", 2),
    Sketcher.Constraint("Vertical", 3),
    Sketcher.Constraint("DistanceX", 0, 2, 0, 1, 15.0),
    Sketcher.Constraint("DistanceX", 0, 2, -1, 1, 7.5),
    Sketcher.Constraint("DistanceY", 1, 2, 1, 1, 0.930513),
    Sketcher.Constraint("DistanceY", -1, 1, 1, 2, 3.24559),
])
pad10 = body.newObject("PartDesign::Pad", "Pad009")
pad10.Profile = sketch12
pad10.Length = 3.9

# Sketch on YZ plane
sketch13 = body.newObject("Sketcher::SketchObject", "Sketch012")
sketch13.AttachmentSupport = (doc.getObject("YZ_Plane"), [""])
sketch13.MapMode = "FlatFace"
sketch13.AttachmentOffset = App.Placement(App.Vector(0, 0, 24.9), App.Rotation())
sketch13.addGeometry([
    Part.LineSegment(App.Vector(7.5, 4.2, 0), App.Vector(-7.5, 4.2, 0)),
    Part.LineSegment(App.Vector(-7.5, 4.2, 0), App.Vector(-7.5, 3.2, 0)),
    Part.LineSegment(App.Vector(-7.5, 3.2, 0), App.Vector(7.5, 3.2, 0)),
    Part.LineSegment(App.Vector(7.5, 3.2, 0), App.Vector(7.5, 4.2, 0)),
], False)
sketch13.addConstraint([
    Sketcher.Constraint("Coincident", 0, 2, 1, 1),
    Sketcher.Constraint("Coincident", 1, 2, 2, 1),
    Sketcher.Constraint("Coincident", 2, 2, 3, 1),
    Sketcher.Constraint("Coincident", 3, 2, 0, 1),
    Sketcher.Constraint("Horizontal", 0),
    Sketcher.Constraint("Vertical", 1),
    Sketcher.Constraint("Horizontal", 2),
    Sketcher.Constraint("Vertical", 3),
    Sketcher.Constraint("DistanceX", 0, 2, 0, 1, 15.0),
    Sketcher.Constraint("DistanceX", 0, 2, -1, 1, 7.5),
    Sketcher.Constraint("DistanceY", 1, 2, 1, 1, 0.930513),
    Sketcher.Constraint("DistanceY", -1, 1, 1, 2, 3.24559),
])
pad11 = body.newObject("PartDesign::Pad", "Pad010")
pad11.Profile = sketch13
pad11.Length = 0.1

# Sketch on YZ plane
sketch14 = body.newObject("Sketcher::SketchObject", "Sketch013")
sketch14.AttachmentSupport = (doc.getObject("YZ_Plane"), [""])
sketch14.MapMode = "FlatFace"
sketch14.AttachmentOffset = App.Placement(App.Vector(0, 0, 21), App.Rotation())
sketch14.addGeometry([
    Part.LineSegment(App.Vector(6.2, 9, 0), App.Vector(6.2, 6, 0)),  # 0
    Part.LineSegment(App.Vector(6.2, 6, 0), App.Vector(-6.2, 6, 0)),  # 1
    Part.LineSegment(App.Vector(-6.2, 6, 0), App.Vector(-6.2, 9, 0)),  # 2
    Part.LineSegment(App.Vector(-6.2, 9, 0), App.Vector(-4, 9, 0)),  # 3
    Part.LineSegment(App.Vector(-4, 9, 0), App.Vector(-4, 9.5, 0)),  # 4
    Part.LineSegment(App.Vector(-4, 9.5, 0), App.Vector(-6.7, 9.5, 0)),  # 5
    Part.LineSegment(App.Vector(-6.7, 9.5, 0), App.Vector(-6.7, 5.5, 0)),  # 6
    Part.LineSegment(App.Vector(-6.7, 5.5, 0), App.Vector(6.7, 5.5, 0)),  # 7
    Part.LineSegment(App.Vector(6.7, 5.5, 0), App.Vector(6.7, 9.5, 0)),  # 8
    Part.LineSegment(App.Vector(6.7, 9.5, 0), App.Vector(4, 9.5, 0)),  # 9
    Part.LineSegment(App.Vector(4, 9.5, 0), App.Vector(4, 9, 0)),  # 10
    Part.LineSegment(App.Vector(4, 9, 0), App.Vector(6.2, 9, 0)),  # 11
], False)
sketch14.addConstraint([
    Sketcher.Constraint("Coincident", 0, 2, 1, 1),
    Sketcher.Constraint("Coincident", 1, 2, 2, 1),
    Sketcher.Constraint("Coincident", 2, 2, 3, 1),
    Sketcher.Constraint("Coincident", 3, 2, 4, 1),
    Sketcher.Constraint("Coincident", 4, 2, 5, 1),
    Sketcher.Constraint("Coincident", 5, 2, 6, 1),
    Sketcher.Constraint("Coincident", 6, 2, 7, 1),
    Sketcher.Constraint("Coincident", 7, 2, 8, 1),
    Sketcher.Constraint("Coincident", 8, 2, 9, 1),
    Sketcher.Constraint("Coincident", 9, 2, 10, 1),
    Sketcher.Constraint("Coincident", 10, 2, 11, 1),
    Sketcher.Constraint("Coincident", 11, 2, 0, 1),
    Sketcher.Constraint("Vertical", 0),
    Sketcher.Constraint("Horizontal", 1),
    Sketcher.Constraint("Vertical", 2),
    Sketcher.Constraint("Horizontal", 3),
    Sketcher.Constraint("Vertical", 4),
    Sketcher.Constraint("Horizontal", 5),
    Sketcher.Constraint("Vertical", 6),
    Sketcher.Constraint("Horizontal", 7),
    Sketcher.Constraint("Vertical", 8),
    Sketcher.Constraint("Horizontal", 9),
    Sketcher.Constraint("Vertical", 10),
    Sketcher.Constraint("Horizontal", 11),
    Sketcher.Constraint("Symmetric", 5, 2, 8, 2, -2),
    Sketcher.Constraint("Symmetric", 3, 2, 10, 2, -2),
    Sketcher.Constraint("Equal", 3, 11),
    Sketcher.Constraint("DistanceX", 1, 2, 1, 1, 12.4),
    Sketcher.Constraint("DistanceX", 3, 1, 3, 2, 2.2),
    Sketcher.Constraint("DistanceX", 5, 2, 5, 1, 2.7),
    Sketcher.Constraint("DistanceY", 4, 1, 4, 2, 0.5),
    Sketcher.Constraint("DistanceY", -1, 1, 2, 2, 9.0),
    Sketcher.Constraint("DistanceY", 6, 2, 1, 2, 0.5),
    Sketcher.Constraint("DistanceY", 0, 2, 0, 1, 3.023897),
])
pad12 = body.newObject("PartDesign::Pad", "Pad011")
pad12.Profile = sketch14
pad12.Length = 5

# Sketch on YZ plane
sketch15 = body.newObject("Sketcher::SketchObject", "Sketch014")
sketch15.AttachmentSupport = (doc.getObject("YZ_Plane"), [""])
sketch15.MapMode = "FlatFace"
sketch15.AttachmentOffset = App.Placement(App.Vector(0, 0, 21), App.Rotation())
sketch15.addGeometry([
    Part.Circle(App.Vector(5, 7.49, 0), App.Vector(0, 0, 1), 0.25),  # 0
    Part.Circle(App.Vector(3, 7.49, 0), App.Vector(0, 0, 1), 0.25),  # 1
    Part.Circle(App.Vector(1, 7.49, 0), App.Vector(0, 0, 1), 0.25),  # 2
    Part.Circle(App.Vector(-1, 7.49, 0), App.Vector(0, 0, 1), 0.25),  # 3
    Part.Circle(App.Vector(-3, 7.49, 0), App.Vector(0, 0, 1), 0.25),  # 4
    Part.Circle(App.Vector(-5, 7.49, 0), App.Vector(0, 0, 1), 0.25),  # 5
], False)
sketch15.addConstraint([
    Sketcher.Constraint("Equal", 0, 1),
    Sketcher.Constraint("Equal", 1, 2),
    Sketcher.Constraint("Equal", 2, 3),
    Sketcher.Constraint("Equal", 3, 4),
    Sketcher.Constraint("Equal", 4, 5),
    Sketcher.Constraint("Symmetric", 2, 3, 3, 3, -2),
    Sketcher.Constraint("Symmetric", 1, 3, 4, 3, -2),
    Sketcher.Constraint("Symmetric", 0, 3, 5, 3, -2),
    Sketcher.Constraint("Horizontal", 0, 3, 1, 3),
    Sketcher.Constraint("Horizontal", 1, 3, 2, 3),
    Sketcher.Constraint("Diameter", 0, 0.5),
    Sketcher.Constraint("DistanceX", -1, 1, 0, 3, 5.0),
    Sketcher.Constraint("DistanceX", -1, 1, 1, 3, 3.0),
    Sketcher.Constraint("DistanceX", -1, 1, 2, 3, 1.0),
    Sketcher.Constraint("DistanceY", -1, 1, 0, 3, 7.488051),
])
pad13 = body.newObject("PartDesign::Pad", "Pad012")
pad13.Profile = sketch15
pad13.Length = 5

# Sketch on XY plane
sketch16 = body.newObject("Sketcher::SketchObject", "Sketch015")
sketch16.AttachmentSupport = (doc.getObject("XY_Plane"), [""])
sketch16.MapMode = "FlatFace"
sketch16.AttachmentOffset = App.Placement(App.Vector(0, 0, 40.4), App.Rotation())
sketch16.addGeometry([
    Part.Circle(App.Vector(-15.5, 15.5, 0), App.Vector(0, 0, 1), 1.5),
    Part.Circle(App.Vector(15.5, 15.5, 0), App.Vector(0, 0, 1), 1.5),
    Part.Circle(App.Vector(15.5, -15.5, 0), App.Vector(0, 0, 1), 1.5),
    Part.Circle(App.Vector(-15.5, -15.5, 0), App.Vector(0, 0, 1), 1.5),
], False)
sketch16.addConstraint([
    Sketcher.Constraint("Equal", 0, 1),
    Sketcher.Constraint("Equal", 1, 2),
    Sketcher.Constraint("Equal", 2, 3),
    Sketcher.Constraint("Symmetric", 0, 3, 2, 3, -1, 1),
    Sketcher.Constraint("Symmetric", 1, 3, 3, 3, -1, 1),
    Sketcher.Constraint("Symmetric", 0, 3, 1, 3, -2),
    Sketcher.Constraint("Diameter", 0, 3.0),
    Sketcher.Constraint("DistanceX", 0, 3, 1, 3, 31.0),
    Sketcher.Constraint("DistanceY", 2, 3, 1, 3, 31.0),
])
pocket3 = body.newObject("PartDesign::Pocket", "Pocket002")
pocket3.Profile = sketch16
pocket3.Length = 5.5

# Sketch on XY plane
sketch17 = body.newObject("Sketcher::SketchObject", "Sketch016")
sketch17.AttachmentSupport = (doc.getObject("XY_Plane"), [""])
sketch17.MapMode = "FlatFace"
sketch17.addGeometry([
    Part.Circle(App.Vector(15.5, 15.5, 0), App.Vector(0, 0, 1), 3.2),
    Part.Circle(App.Vector(-15.5, 15.5, 0), App.Vector(0, 0, 1), 3.2),
    Part.Circle(App.Vector(-15.5, -15.5, 0), App.Vector(0, 0, 1), 3.2),
    Part.Circle(App.Vector(15.5, -15.5, 0), App.Vector(0, 0, 1), 3.2),
], False)
sketch17.addConstraint([
    Sketcher.Constraint("Equal", 0, 1),
    Sketcher.Constraint("Equal", 1, 2),
    Sketcher.Constraint("Equal", 2, 3),
    Sketcher.Constraint("Symmetric", 0, 3, 2, 3, -1, 1),
    Sketcher.Constraint("Symmetric", 1, 3, 3, 3, -1, 1),
    Sketcher.Constraint("Symmetric", 0, 3, 1, 3, -2),
    Sketcher.Constraint("Diameter", 0, 6.5),
    Sketcher.Constraint("DistanceX", 1, 3, 0, 3, 31.0),
    Sketcher.Constraint("DistanceY", 2, 3, 1, 3, 31.0),
])
pocket4 = body.newObject("PartDesign::Pocket", "Pocket003")
pocket4.Profile = sketch17
pocket4.Length = 3
pocket4.Reversed = True

# Sketch on XY plane
sketch18 = body.newObject("Sketcher::SketchObject", "Sketch017")
sketch18.AttachmentSupport = (doc.getObject("XY_Plane"), [""])
sketch18.MapMode = "FlatFace"
sketch18.AttachmentOffset = App.Placement(App.Vector(0, 0, 7), App.Rotation())
sketch18.addGeometry([
    Part.Circle(App.Vector(15.5, 15.5, 0), App.Vector(0, 0, 1), 1.5),
    Part.Circle(App.Vector(-15.5, 15.5, 0), App.Vector(0, 0, 1), 1.5),
    Part.Circle(App.Vector(15.5, -15.5, 0), App.Vector(0, 0, 1), 1.5),
    Part.Circle(App.Vector(-15.5, -15.5, 0), App.Vector(0, 0, 1), 1.5),
], False)
sketch18.addConstraint([
    Sketcher.Constraint("Equal", 0, 1),
    Sketcher.Constraint("Equal", 1, 2),
    Sketcher.Constraint("Equal", 2, 3),
    Sketcher.Constraint("Symmetric", 1, 3, 2, 3, -1, 1),
    Sketcher.Constraint("Symmetric", 0, 3, 3, 3, -1, 1),
    Sketcher.Constraint("Symmetric", 0, 3, 1, 3, -2),
    Sketcher.Constraint("Diameter", 0, 3.0),
    Sketcher.Constraint("DistanceX", 1, 3, 0, 3, 31.0),
    Sketcher.Constraint("DistanceY", 2, 3, 0, 3, 31.0),
])
pocket5 = body.newObject("PartDesign::Pocket", "Pocket004")
pocket5.Profile = sketch18
pocket5.Length = 4

# Sketch on XY plane
sketch19 = body.newObject("Sketcher::SketchObject", "Sketch018")
sketch19.AttachmentSupport = (doc.getObject("XY_Plane"), [""])
sketch19.MapMode = "FlatFace"
sketch19.addGeometry(Part.Circle(App.Vector(0, 0, 0), App.Vector(0, 0, 1), 4.5), False)
sketch19.addConstraint([
    Sketcher.Constraint("Coincident", 0, 3, -1, 1),
    Sketcher.Constraint("Diameter", 0, 9.0),
])
pocket6 = body.newObject("PartDesign::Pocket", "Pocket005")
pocket6.Profile = sketch19
pocket6.Length = 4
pocket6.Reversed = True

doc.recompute()
